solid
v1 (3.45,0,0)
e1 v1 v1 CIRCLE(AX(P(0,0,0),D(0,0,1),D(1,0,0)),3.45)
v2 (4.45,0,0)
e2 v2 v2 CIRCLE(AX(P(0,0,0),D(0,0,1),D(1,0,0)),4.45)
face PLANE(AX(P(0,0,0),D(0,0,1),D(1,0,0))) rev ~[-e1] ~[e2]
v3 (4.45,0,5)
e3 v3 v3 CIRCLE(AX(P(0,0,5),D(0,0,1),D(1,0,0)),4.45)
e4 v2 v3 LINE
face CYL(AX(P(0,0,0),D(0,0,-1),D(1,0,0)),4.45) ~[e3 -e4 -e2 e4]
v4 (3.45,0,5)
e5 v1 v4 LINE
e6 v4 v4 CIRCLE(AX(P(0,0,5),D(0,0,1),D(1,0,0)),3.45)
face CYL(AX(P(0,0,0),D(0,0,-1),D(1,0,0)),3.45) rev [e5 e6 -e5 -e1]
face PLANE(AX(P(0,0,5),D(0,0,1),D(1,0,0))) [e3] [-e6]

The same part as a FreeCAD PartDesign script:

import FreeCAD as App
import Part
import Sketcher
Q = App.Units.Quantity

doc = App.newDocument("Part")
body = doc.addObject("PartDesign::Body", "Body")

sketch1 = body.newObject("Sketcher::SketchObject", "Sketch")
sketch1.AttachmentSupport = (doc.getObject("XY_Plane"), [""])
sketch1.MapMode = "FlatFace"
sketch1.addGeometry(Part.Circle(App.Vector(0, 0, 0), App.Vector(0, 0, 1), 4.45), False)
sketch1.addGeometry(Part.Circle(App.Vector(0, 0, 0), App.Vector(0, 0, 1), 3.45), False)
sketch1.addConstraint(Sketcher.Constraint("Coincident", 0, 3, -1, 1))
sketch1.addConstraint(Sketcher.Constraint("Coincident", 1, 3, -1, 1))
sketch1.addConstraint(Sketcher.Constraint("Diameter", 1, Q("6.9 mm")))
sketch1.addConstraint(Sketcher.Constraint("Diameter", 0, Q("8.9 mm")))
pad1 = body.newObject("PartDesign::Pad", "Pad")
pad1.Profile = sketch1
pad1.Length = 5

doc.recompute()
